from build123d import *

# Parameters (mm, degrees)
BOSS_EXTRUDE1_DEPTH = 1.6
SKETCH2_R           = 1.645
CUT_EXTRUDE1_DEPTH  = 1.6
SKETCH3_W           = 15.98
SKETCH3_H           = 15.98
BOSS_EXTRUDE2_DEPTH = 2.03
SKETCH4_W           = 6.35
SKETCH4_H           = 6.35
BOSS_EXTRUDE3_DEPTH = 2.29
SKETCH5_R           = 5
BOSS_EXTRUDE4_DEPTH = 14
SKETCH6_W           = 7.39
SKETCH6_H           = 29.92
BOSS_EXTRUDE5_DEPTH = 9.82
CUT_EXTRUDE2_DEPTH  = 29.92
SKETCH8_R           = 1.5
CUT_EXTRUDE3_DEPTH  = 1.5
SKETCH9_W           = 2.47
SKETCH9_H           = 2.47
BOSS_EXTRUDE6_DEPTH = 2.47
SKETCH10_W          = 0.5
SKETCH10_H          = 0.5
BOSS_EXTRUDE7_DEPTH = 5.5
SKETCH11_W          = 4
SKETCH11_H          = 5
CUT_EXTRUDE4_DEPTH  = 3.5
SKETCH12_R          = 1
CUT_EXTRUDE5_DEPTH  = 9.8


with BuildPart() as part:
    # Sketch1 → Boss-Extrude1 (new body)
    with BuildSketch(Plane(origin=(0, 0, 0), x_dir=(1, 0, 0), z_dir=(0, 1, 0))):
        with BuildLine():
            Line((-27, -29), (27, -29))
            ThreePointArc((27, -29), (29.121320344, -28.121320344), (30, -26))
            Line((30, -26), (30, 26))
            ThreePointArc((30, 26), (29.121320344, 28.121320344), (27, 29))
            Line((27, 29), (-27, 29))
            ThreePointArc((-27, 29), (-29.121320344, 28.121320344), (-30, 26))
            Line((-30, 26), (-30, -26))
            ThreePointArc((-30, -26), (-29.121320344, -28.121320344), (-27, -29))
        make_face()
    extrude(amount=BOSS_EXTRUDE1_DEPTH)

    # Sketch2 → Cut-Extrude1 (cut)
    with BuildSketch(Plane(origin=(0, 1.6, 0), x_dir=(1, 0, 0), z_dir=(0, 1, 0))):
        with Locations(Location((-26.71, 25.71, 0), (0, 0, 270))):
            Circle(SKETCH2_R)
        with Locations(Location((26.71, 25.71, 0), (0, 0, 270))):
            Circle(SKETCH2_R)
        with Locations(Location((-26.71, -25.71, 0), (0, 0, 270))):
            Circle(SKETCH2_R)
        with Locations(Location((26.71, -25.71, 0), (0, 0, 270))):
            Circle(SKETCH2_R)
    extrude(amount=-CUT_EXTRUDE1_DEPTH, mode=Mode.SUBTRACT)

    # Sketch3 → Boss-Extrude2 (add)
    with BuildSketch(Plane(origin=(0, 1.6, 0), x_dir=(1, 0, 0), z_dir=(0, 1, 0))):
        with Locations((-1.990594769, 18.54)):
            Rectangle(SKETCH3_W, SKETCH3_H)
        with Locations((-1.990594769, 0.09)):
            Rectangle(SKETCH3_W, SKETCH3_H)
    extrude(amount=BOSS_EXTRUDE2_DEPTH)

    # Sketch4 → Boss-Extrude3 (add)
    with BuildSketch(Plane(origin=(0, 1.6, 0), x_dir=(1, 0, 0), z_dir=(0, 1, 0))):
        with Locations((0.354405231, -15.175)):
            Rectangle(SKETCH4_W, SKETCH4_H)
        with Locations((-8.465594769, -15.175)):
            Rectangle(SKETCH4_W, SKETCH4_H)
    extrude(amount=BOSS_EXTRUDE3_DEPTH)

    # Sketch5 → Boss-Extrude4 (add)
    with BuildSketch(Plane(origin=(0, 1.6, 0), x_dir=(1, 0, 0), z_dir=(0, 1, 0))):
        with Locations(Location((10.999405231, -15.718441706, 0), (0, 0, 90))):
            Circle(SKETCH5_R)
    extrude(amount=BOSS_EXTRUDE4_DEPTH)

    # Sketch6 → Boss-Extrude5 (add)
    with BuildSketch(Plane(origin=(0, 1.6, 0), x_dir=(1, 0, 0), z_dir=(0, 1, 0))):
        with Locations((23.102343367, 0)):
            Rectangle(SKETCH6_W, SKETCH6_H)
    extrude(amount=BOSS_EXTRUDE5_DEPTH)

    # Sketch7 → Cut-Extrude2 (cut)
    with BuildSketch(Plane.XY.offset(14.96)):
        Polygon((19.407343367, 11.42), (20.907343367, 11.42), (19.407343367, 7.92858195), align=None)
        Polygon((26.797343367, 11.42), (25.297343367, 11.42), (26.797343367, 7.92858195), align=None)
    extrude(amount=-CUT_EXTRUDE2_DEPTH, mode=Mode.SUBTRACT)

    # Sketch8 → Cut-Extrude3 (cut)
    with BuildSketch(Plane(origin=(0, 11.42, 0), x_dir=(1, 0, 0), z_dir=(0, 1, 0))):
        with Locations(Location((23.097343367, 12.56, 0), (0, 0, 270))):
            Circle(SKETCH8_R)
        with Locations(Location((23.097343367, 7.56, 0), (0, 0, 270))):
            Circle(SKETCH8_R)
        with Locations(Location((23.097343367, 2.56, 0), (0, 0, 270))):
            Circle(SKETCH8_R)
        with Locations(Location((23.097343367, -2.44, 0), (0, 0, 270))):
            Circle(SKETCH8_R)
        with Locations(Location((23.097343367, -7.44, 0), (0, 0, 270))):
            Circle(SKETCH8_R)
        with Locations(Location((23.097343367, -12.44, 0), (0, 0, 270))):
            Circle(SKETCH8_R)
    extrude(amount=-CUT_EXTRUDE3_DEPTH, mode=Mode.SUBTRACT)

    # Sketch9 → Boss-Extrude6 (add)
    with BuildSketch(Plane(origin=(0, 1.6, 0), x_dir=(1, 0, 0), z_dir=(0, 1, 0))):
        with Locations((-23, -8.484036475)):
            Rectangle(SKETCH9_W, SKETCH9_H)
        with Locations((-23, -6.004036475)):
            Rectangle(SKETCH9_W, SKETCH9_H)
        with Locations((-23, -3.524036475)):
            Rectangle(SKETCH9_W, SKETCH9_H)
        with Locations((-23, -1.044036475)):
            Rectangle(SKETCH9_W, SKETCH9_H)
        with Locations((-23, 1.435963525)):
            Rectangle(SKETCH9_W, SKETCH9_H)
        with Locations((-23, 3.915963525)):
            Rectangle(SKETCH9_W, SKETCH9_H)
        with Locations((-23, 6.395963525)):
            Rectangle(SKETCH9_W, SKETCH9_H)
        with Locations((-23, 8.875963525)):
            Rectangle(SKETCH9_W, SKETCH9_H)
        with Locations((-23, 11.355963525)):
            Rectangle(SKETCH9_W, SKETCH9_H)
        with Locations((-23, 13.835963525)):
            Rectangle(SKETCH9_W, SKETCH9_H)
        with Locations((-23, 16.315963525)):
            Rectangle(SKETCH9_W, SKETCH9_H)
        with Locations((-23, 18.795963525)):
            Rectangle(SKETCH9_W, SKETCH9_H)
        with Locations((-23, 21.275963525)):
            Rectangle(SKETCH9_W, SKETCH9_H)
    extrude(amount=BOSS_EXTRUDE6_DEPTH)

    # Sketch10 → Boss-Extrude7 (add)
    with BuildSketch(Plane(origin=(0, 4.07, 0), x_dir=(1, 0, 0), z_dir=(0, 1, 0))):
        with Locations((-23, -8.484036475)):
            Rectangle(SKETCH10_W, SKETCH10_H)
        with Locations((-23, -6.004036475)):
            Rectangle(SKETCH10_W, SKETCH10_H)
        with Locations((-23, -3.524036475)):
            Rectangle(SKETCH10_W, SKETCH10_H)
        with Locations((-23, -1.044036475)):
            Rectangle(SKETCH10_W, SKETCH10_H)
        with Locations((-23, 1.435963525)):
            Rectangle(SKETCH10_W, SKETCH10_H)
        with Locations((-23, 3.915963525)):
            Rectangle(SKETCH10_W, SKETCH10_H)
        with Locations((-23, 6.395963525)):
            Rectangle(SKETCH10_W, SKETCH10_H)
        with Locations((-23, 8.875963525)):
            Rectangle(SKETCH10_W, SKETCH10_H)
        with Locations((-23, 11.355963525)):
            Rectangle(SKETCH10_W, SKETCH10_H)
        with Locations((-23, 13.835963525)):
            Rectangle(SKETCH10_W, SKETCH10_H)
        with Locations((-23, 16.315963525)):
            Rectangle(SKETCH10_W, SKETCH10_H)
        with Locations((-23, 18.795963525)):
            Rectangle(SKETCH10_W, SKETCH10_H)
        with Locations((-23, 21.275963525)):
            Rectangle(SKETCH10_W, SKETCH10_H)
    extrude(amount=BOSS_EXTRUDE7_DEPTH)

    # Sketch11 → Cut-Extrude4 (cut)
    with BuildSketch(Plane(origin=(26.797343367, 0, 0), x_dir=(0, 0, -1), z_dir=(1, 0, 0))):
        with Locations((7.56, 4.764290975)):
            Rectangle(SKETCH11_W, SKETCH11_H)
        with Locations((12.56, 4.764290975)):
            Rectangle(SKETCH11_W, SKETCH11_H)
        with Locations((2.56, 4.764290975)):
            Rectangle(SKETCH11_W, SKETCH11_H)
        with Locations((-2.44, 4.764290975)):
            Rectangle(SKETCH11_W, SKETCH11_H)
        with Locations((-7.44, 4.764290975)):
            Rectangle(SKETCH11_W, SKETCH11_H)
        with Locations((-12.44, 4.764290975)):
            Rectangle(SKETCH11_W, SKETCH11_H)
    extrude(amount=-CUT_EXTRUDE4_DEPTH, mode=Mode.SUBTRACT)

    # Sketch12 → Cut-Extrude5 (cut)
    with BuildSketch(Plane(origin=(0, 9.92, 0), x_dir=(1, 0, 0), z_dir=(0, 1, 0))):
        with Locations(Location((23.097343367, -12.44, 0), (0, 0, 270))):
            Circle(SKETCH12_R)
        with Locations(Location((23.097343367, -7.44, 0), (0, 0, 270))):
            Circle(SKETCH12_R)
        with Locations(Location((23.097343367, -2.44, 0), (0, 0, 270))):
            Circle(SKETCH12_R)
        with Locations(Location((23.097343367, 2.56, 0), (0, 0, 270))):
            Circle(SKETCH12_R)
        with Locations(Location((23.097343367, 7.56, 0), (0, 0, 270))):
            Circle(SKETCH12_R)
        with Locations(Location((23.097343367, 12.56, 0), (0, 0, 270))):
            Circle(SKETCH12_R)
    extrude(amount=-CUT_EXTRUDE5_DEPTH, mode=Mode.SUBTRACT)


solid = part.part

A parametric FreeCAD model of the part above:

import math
import FreeCAD as App
import Part
import Sketcher
from FreeCAD import Vector


def add_polygon(sketch, points):
    """Adds a closed chain of lines whose ends are joined by coincident constraints."""
    first, n = sketch.GeometryCount, len(points)
    for a, b in zip(points, points[1:] + points[:1]):
        sketch.addGeometry(Part.LineSegment(App.Vector(*a, 0), App.Vector(*b, 0)), False)
    for i in range(n):
        sketch.addConstraint(Sketcher.Constraint("Coincident", first + i, 2, first + (i + 1) % n, 1))

doc = App.newDocument("Part")
body = doc.addObject("PartDesign::Body", "Body")

sketch1 = body.newObject("Sketcher::SketchObject", "Sketch")
sketch1.AttachmentSupport = (doc.getObject("XZ_Plane"), [""])
sketch1.MapMode = "FlatFace"
sketch1.addGeometry([
    Part.LineSegment(Vector(-27, 29, 0), Vector(27, 29, 0)),
    Part.ArcOfCircle(Part.Circle(Vector(27, 26, 0), Vector(0, 0, 1), 3), math.radians(0), math.radians(90)),
    Part.LineSegment(Vector(30, 26, 0), Vector(30, -26, 0)),
    Part.ArcOfCircle(Part.Circle(Vector(27, -26, 0), Vector(0, 0, 1), 3), math.radians(-90), math.radians(0)),
    Part.LineSegment(Vector(27, -29, 0), Vector(-27, -29, 0)),
    Part.ArcOfCircle(Part.Circle(Vector(-27, -26, 0), Vector(0, 0, 1), 3), math.radians(180), math.radians(270)),
    Part.LineSegment(Vector(-30, -26, 0), Vector(-30, 26, 0)),
    Part.ArcOfCircle(Part.Circle(Vector(-27, 26, 0), Vector(0, 0, 1), 3), math.radians(90), math.radians(180)),
], False)
sketch1.addConstraint([
    Sketcher.Constraint("Tangent", 0, 2, 1, 2),
    Sketcher.Constraint("Tangent", 1, 1, 2, 1),
    Sketcher.Constraint("Tangent", 2, 2, 3, 2),
    Sketcher.Constraint("Tangent", 3, 1, 4, 1),
    Sketcher.Constraint("Tangent", 4, 2, 5, 2),
    Sketcher.Constraint("Tangent", 5, 1, 6, 1),
    Sketcher.Constraint("Tangent", 6, 2, 7, 2),
    Sketcher.Constraint("Tangent", 7, 1, 0, 1),
    Sketcher.Constraint("Horizontal", 0),
    Sketcher.Constraint("Vertical", 2),
    Sketcher.Constraint("Horizontal", 4),
    Sketcher.Constraint("Vertical", 6),
    Sketcher.Constraint("Equal", 1, 3),
    Sketcher.Constraint("Equal", 3, 5),
    Sketcher.Constraint("Equal", 5, 7),
    Sketcher.Constraint("Symmetric", 1, 3, 5, 3, -1, 1),
    Sketcher.Constraint("Radius", 1, 3.0),
    Sketcher.Constraint("DistanceX", 0, 1, 0, 2, 54.0),
    Sketcher.Constraint("DistanceY", 2, 2, 2, 1, 52.0),
])
pad1 = body.newObject("PartDesign::Pad", "Pad")
pad1.Profile = sketch1
pad1.Length = 1.6
pad1.Reversed = True

sketch2 = body.newObject("Sketcher::SketchObject", "Sketch001")
sketch2.AttachmentSupport = (doc.getObject("XZ_Plane"), [""])
sketch2.MapMode = "FlatFace"
sketch2.AttachmentOffset = App.Placement(Vector(0, 0, -1.6), App.Rotation())
sketch2.addGeometry([
    Part.Circle(Vector(-26.71, -25.71, 0), Vector(0, 0, 1), 1.645),
    Part.Circle(Vector(26.71, -25.71, 0), Vector(0, 0, 1), 1.645),
    Part.Circle(Vector(-26.71, 25.71, 0), Vector(0, 0, 1), 1.645),
    Part.Circle(Vector(26.71, 25.71, 0), Vector(0, 0, 1), 1.645),
], False)
sketch2.addConstraint([
    Sketcher.Constraint("Equal", 0, 1),
    Sketcher.Constraint("Equal", 1, 2),
    Sketcher.Constraint("Equal", 2, 3),
    Sketcher.Constraint("Symmetric", 1, 3, 2, 3, -1, 1),
    Sketcher.Constraint("Symmetric", 0, 3, 3, 3, -1, 1),
    Sketcher.Constraint("Symmetric", 0, 3, 1, 3, -2),
    Sketcher.Constraint("Diameter", 0, 3.29),
    Sketcher.Constraint("DistanceX", 0, 3, -1, 1, 26.71),
    Sketcher.Constraint("DistanceY", 0, 3, -1, 1, 25.71),
])
pocket1 = body.newObject("PartDesign::Pocket", "Pocket")
pocket1.Profile = sketch2
pocket1.Length = 1.6
pocket1.Reversed = True

sketch3 = body.newObject("Sketcher::SketchObject", "Sketch002")
sketch3.AttachmentSupport = (doc.getObject("XZ_Plane"), [""])
sketch3.MapMode = "FlatFace"
sketch3.AttachmentOffset = App.Placement(Vector(0, 0, -1.6), App.Rotation())
add_polygon(sketch3, [(-9.980595, -26.53), (-9.980595, -10.55), (5.999405, -10.55), (5.999405, -26.53)])
add_polygon(sketch3, [(-9.980595, -8.08), (-9.980595, 7.9), (5.999405, 7.9), (5.999405, -8.08)])
sketch3.addConstraint([
    Sketcher.Constraint("Vertical", 0),
    Sketcher.Constraint("Horizontal", 1),
    Sketcher.Constraint("Vertical", 2),
    Sketcher.Constraint("Horizontal", 3),
    Sketcher.Constraint("Vertical", 4),
    Sketcher.Constraint("Horizontal", 5),
    Sketcher.Constraint("Vertical", 6),
    Sketcher.Constraint("Horizontal", 7),
    Sketcher.Constraint("Vertical", 3, 2, 4, 2),
    Sketcher.Constraint("Vertical", 2, 2, 5, 2),
    Sketcher.Constraint("Equal", 7, 0),
    Sketcher.Constraint("Equal", 2, 4),
    Sketcher.Constraint("DistanceX", 1, 1, 1, 2, 15.98),
    Sketcher.Constraint("DistanceY", -1, 1, 4, 2, 7.9),
    Sketcher.Constraint("DistanceY", 0, 2, -1, 1, 10.55),
    Sketcher.Constraint("DistanceX", 0, 2, -1, 1, 9.980595),
])
pad2 = body.newObject("PartDesign::Pad", "Pad001")
pad2.Profile = sketch3
pad2.Length = 2.03
pad2.Reversed = True

sketch4 = body.newObject("Sketcher::SketchObject", "Sketch003")
sketch4.AttachmentSupport = (doc.getObject("XZ_Plane"), [""])
sketch4.MapMode = "FlatFace"
sketch4.AttachmentOffset = App.Placement(Vector(0, 0, -1.6), App.Rotation())
add_polygon(sketch4, [(-2.820595, 12), (-2.820595, 18.35), (3.529405, 18.35), (3.529405, 12)])
add_polygon(sketch4, [(-11.640595, 12), (-11.640595, 18.35), (-5.290595, 18.35), (-5.290595, 12)])
sketch4.addConstraint([
    Sketcher.Constraint("Vertical", 0),
    Sketcher.Constraint("Horizontal", 1),
    Sketcher.Constraint("Vertical", 2),
    Sketcher.Constraint("Horizontal", 3),
    Sketcher.Constraint("Vertical", 4),
    Sketcher.Constraint("Horizontal", 5),
    Sketcher.Constraint("Vertical", 6),
    Sketcher.Constraint("Horizontal", 7),
    Sketcher.Constraint("Horizontal", 1, 2, 4, 2),
    Sketcher.Constraint("Horizontal", 3, 2, 6, 2),
    Sketcher.Constraint("Equal", 3, 5),
    Sketcher.Constraint("Equal", 7, 0),
    Sketcher.Constraint("DistanceY", -1, 1, 2, 2, 12.0),
    Sketcher.Constraint("DistanceX", 1, 1, 1, 2, 6.35),
    Sketcher.Constraint("DistanceX", 4, 2, 0, 2, 8.82),
    Sketcher.Constraint("DistanceX", 0, 2, -1, 1, 2.820595),
])
pad3 = body.newObject("PartDesign::Pad", "Pad002")
pad3.Profile = sketch4
pad3.Length = 2.29
pad3.Reversed = True

sketch5 = body.newObject("Sketcher::SketchObject", "Sketch004")
sketch5.AttachmentSupport = (doc.getObject("XZ_Plane"), [""])
sketch5.MapMode = "FlatFace"
sketch5.AttachmentOffset = App.Placement(Vector(0, 0, -1.6), App.Rotation())
sketch5.addGeometry(Part.Circle(Vector(10.999405, 15.718442, 0), Vector(0, 0, 1), 5), False)
sketch5.addConstraint([
    Sketcher.Constraint("Diameter", 0, 10.0),
    Sketcher.Constraint("DistanceY", -1, 1, 0, 3, 15.718442),
    Sketcher.Constraint("DistanceX", -1, 1, 0, 3, 10.999405),
])
pad4 = body.newObject("PartDesign::Pad", "Pad003")
pad4.Profile = sketch5
pad4.Length = 14
pad4.Reversed = True

sketch6 = body.newObject("Sketcher::SketchObject", "Sketch005")
sketch6.AttachmentSupport = (doc.getObject("XZ_Plane"), [""])
sketch6.MapMode = "FlatFace"
sketch6.AttachmentOffset = App.Placement(Vector(0, 0, -1.6), App.Rotation())
add_polygon(sketch6, [(19.407343, -14.96), (19.407343, 14.96), (26.797343, 14.96), (26.797343, -14.96)])
sketch6.addConstraint([
    Sketcher.Constraint("Vertical", 0),
    Sketcher.Constraint("Horizontal", 1),
    Sketcher.Constraint("Vertical", 2),
    Sketcher.Constraint("Horizontal", 3),
    Sketcher.Constraint("DistanceX", 1, 1, 1, 2, 7.39),
    Sketcher.Constraint("DistanceY", 0, 1, 0, 2, 29.92),
    Sketcher.Constraint("DistanceY", -1, 1, 0, 2, 14.96),
    Sketcher.Constraint("DistanceX", -1, 1, 0, 2, 19.407343),
])
pad5 = body.newObject("PartDesign::Pad", "Pad004")
pad5.Profile = sketch6
pad5.Length = 9.82
pad5.Reversed = True

sketch7 = body.newObject("Sketcher::SketchObject", "Sketch006")
sketch7.AttachmentSupport = (doc.getObject("XY_Plane"), [""])
sketch7.MapMode = "FlatFace"
sketch7.AttachmentOffset = App.Placement(Vector(0, 0, 14.96), App.Rotation())
add_polygon(sketch7, [(20.907343, 11.42), (19.407343, 11.42), (19.407343, 7.928582)])
add_polygon(sketch7, [(26.797343, 11.42), (25.297343, 11.42), (26.797343, 7.928582)])
sketch7.addConstraint([
    Sketcher.Constraint("Horizontal", 0),
    Sketcher.Constraint("Vertical", 1),
    Sketcher.Constraint("Horizontal", 3),
    Sketcher.Constraint("Vertical", 5),
    Sketcher.Constraint("Horizontal", 2, 2, 3, 2),
    Sketcher.Constraint("Horizontal", 1, 2, 4, 2),
    Sketcher.Constraint("Equal", 0, 3),
    Sketcher.Constraint("DistanceX", 0, 2, 0, 1, 1.5),
    Sketcher.Constraint("Distance", 2, 3.8),
    Sketcher.Constraint("DistanceY", -1, 1, 0, 2, 11.42),
    Sketcher.Constraint("DistanceX", 2, 2, 3, 2, 4.39),
    Sketcher.Constraint("DistanceX", -1, 1, 0, 2, 19.407343),
])
pocket2 = body.newObject("PartDesign::Pocket", "Pocket001")
pocket2.Profile = sketch7
pocket2.Length = 29.92

sketch8 = body.newObject("Sketcher::SketchObject", "Sketch007")
sketch8.AttachmentSupport = (doc.getObject("XZ_Plane"), [""])
sketch8.MapMode = "FlatFace"
sketch8.AttachmentOffset = App.Placement(Vector(0, 0, -11.42), App.Rotation())
sketch8.addGeometry([
    Part.Circle(Vector(23.097343, -12.56, 0), Vector(0, 0, 1), 1.5),
    Part.Circle(Vector(23.097343, -7.56, 0), Vector(0, 0, 1), 1.5),
    Part.Circle(Vector(23.097343, -2.56, 0), Vector(0, 0, 1), 1.5),
    Part.Circle(Vector(23.097343, 2.44, 0), Vector(0, 0, 1), 1.5),
    Part.Circle(Vector(23.097343, 7.44, 0), Vector(0, 0, 1), 1.5),
    Part.Circle(Vector(23.097343, 12.44, 0), Vector(0, 0, 1), 1.5),
], False)
sketch8.addConstraint([
    Sketcher.Constraint("Equal", 0, 1),
    Sketcher.Constraint("Equal", 1, 2),
    Sketcher.Constraint("Equal", 2, 3),
    Sketcher.Constraint("Equal", 3, 4),
    Sketcher.Constraint("Equal", 4, 5),
    Sketcher.Constraint("Vertical", 0, 3, 1, 3),
    Sketcher.Constraint("Vertical", 1, 3, 2, 3),
    Sketcher.Constraint("Vertical", 2, 3, 3, 3),
    Sketcher.Constraint("Vertical", 3, 3, 4, 3),
    Sketcher.Constraint("Vertical", 4, 3, 5, 3),
    Sketcher.Constraint("Diameter", 0, 3.0),
    Sketcher.Constraint("DistanceY", 0, 3, 1, 3, 5.0),
    Sketcher.Constraint("DistanceY", 1, 3, 2, 3, 5.0),
    Sketcher.Constraint("DistanceY", 2, 3, 3, 3, 5.0),
    Sketcher.Constraint("DistanceY", 3, 3, 4, 3, 5.0),
    Sketcher.Constraint("DistanceY", 4, 3, 5, 3, 5.0),
    Sketcher.Constraint("DistanceY", 0, 3, -1, 1, 12.56),
    Sketcher.Constraint("DistanceX", -1, 1, 0, 3, 23.097343),
])
pocket3 = body.newObject("PartDesign::Pocket", "Pocket002")
pocket3.Profile = sketch8
pocket3.Length = 1.5
pocket3.Reversed = True

sketch9 = body.newObject("Sketcher::SketchObject", "Sketch008")
sketch9.AttachmentSupport = (doc.getObject("XZ_Plane"), [""])
sketch9.MapMode = "FlatFace"
sketch9.AttachmentOffset = App.Placement(Vector(0, 0, -1.6), App.Rotation())
add_polygon(sketch9, [(-24.235, 7.249036), (-24.235, 9.719036), (-21.765, 9.719036), (-21.765, 7.249036)])
add_polygon(sketch9, [(-24.235, 4.769036), (-24.235, 7.239036), (-21.765, 7.239036), (-21.765, 4.769036)])
add_polygon(sketch9, [(-24.235, 2.289036), (-24.235, 4.759036), (-21.765, 4.759036), (-21.765, 2.289036)])
add_polygon(sketch9, [(-24.235, -0.190964), (-24.235, 2.279036), (-21.765, 2.279036), (-21.765, -0.190964)])
add_polygon(sketch9, [(-24.235, -2.670964), (-24.235, -0.200964), (-21.765, -0.200964), (-21.765, -2.670964)])
add_polygon(sketch9, [(-24.235, -5.150964), (-24.235, -2.680964), (-21.765, -2.680964), (-21.765, -5.150964)])
add_polygon(sketch9, [(-24.235, -7.630964), (-24.235, -5.160964), (-21.765, -5.160964), (-21.765, -7.630964)])
add_polygon(sketch9, [(-24.235, -10.110964), (-24.235, -7.640964), (-21.765, -7.640964), (-21.765, -10.110964)])
add_polygon(sketch9, [(-24.235, -12.590964), (-24.235, -10.120964), (-21.765, -10.120964), (-21.765, -12.590964)])
add_polygon(sketch9, [(-24.235, -15.070964), (-24.235, -12.600964), (-21.765, -12.600964), (-21.765, -15.070964)])
add_polygon(sketch9, [(-24.235, -17.550964), (-24.235, -15.080964), (-21.765, -15.080964), (-21.765, -17.550964)])
add_polygon(sketch9, [(-24.235, -20.030964), (-24.235, -17.560964), (-21.765, -17.560964), (-21.765, -20.030964)])
add_polygon(sketch9, [(-24.235, -22.510964), (-24.235, -20.040964), (-21.765, -20.040964), (-21.765, -22.510964)])
sketch9.addConstraint([
    Sketcher.Constraint("Vertical", 0),
    Sketcher.Constraint("Horizontal", 1),
    Sketcher.Constraint("Vertical", 2),
    Sketcher.Constraint("Horizontal", 3),
    Sketcher.Constraint("Vertical", 4),
    Sketcher.Constraint("Horizontal", 5),
    Sketcher.Constraint("Vertical", 6),
    Sketcher.Constraint("Horizontal", 7),
    Sketcher.Constraint("Vertical", 8),
    Sketcher.Constraint("Horizontal", 9),
    Sketcher.Constraint("Vertical", 10),
    Sketcher.Constraint("Horizontal", 11),
    Sketcher.Constraint("Vertical", 12),
    Sketcher.Constraint("Horizontal", 13),
    Sketcher.Constraint("Vertical", 14),
    Sketcher.Constraint("Horizontal", 15),
    Sketcher.Constraint("Vertical", 16),
    Sketcher.Constraint("Horizontal", 17),
    Sketcher.Constraint("Vertical", 18),
    Sketcher.Constraint("Horizontal", 19),
    Sketcher.Constraint("Vertical", 20),
    Sketcher.Constraint("Horizontal", 21),
    Sketcher.Constraint("Vertical", 22),
    Sketcher.Constraint("Horizontal", 23),
    Sketcher.Constraint("Vertical", 24),
    Sketcher.Constraint("Horizontal", 25),
    Sketcher.Constraint("Vertical", 26),
    Sketcher.Constraint("Horizontal", 27),
    Sketcher.Constraint("Vertical", 28),
    Sketcher.Constraint("Horizontal", 29),
    Sketcher.Constraint("Vertical", 30),
    Sketcher.Constraint("Horizontal", 31),
    Sketcher.Constraint("Vertical", 32),
    Sketcher.Constraint("Horizontal", 33),
    Sketcher.Constraint("Vertical", 34),
    Sketcher.Constraint("Horizontal", 35),
    Sketcher.Constraint("Vertical", 36),
    Sketcher.Constraint("Horizontal", 37),
    Sketcher.Constraint("Vertical", 38),
    Sketcher.Constraint("Horizontal", 39),
    Sketcher.Constraint("Vertical", 40),
    Sketcher.Constraint("Horizontal", 41),
    Sketcher.Constraint("Vertical", 42),
    Sketcher.Constraint("Horizontal", 43),
    Sketcher.Constraint("Vertical", 44),
    Sketcher.Constraint("Horizontal", 45),
    Sketcher.Constraint("Vertical", 46),
    Sketcher.Constraint("Horizontal", 47),
    Sketcher.Constraint("Vertical", 48),
    Sketcher.Constraint("Horizontal", 49),
    Sketcher.Constraint("Vertical", 50),
    Sketcher.Constraint("Horizontal", 51),
    Sketcher.Constraint("Vertical", 3, 2, 4, 2),
    Sketcher.Constraint("Vertical", 2, 2, 5, 2),
    Sketcher.Constraint("Vertical", 7, 2, 8, 2),
    Sketcher.Constraint("Vertical", 6, 2, 9, 2),
    Sketcher.Constraint("Vertical", 11, 2, 12, 2),
    Sketcher.Constraint("Vertical", 10, 2, 13, 2),
    Sketcher.Constraint("Vertical", 15, 2, 16, 2),
    Sketcher.Constraint("Vertical", 14, 2, 17, 2),
    Sketcher.Constraint("Vertical", 19, 2, 20, 2),
    Sketcher.Constraint("Vertical", 18, 2, 21, 2),
    Sketcher.Constraint("Vertical", 23, 2, 24, 2),
    Sketcher.Constraint("Vertical", 22, 2, 25, 2),
    Sketcher.Constraint("Vertical", 27, 2, 28, 2),
    Sketcher.Constraint("Vertical", 26, 2, 29, 2),
    Sketcher.Constraint("Vertical", 31, 2, 32, 2),
    Sketcher.Constraint("Vertical", 30, 2, 33, 2),
    Sketcher.Constraint("Vertical", 35, 2, 36, 2),
    Sketcher.Constraint("Vertical", 34, 2, 37, 2),
    Sketcher.Constraint("Vertical", 39, 2, 40, 2),
    Sketcher.Constraint("Vertical", 38, 2, 41, 2),
    Sketcher.Constraint("Vertical", 43, 2, 44, 2),
    Sketcher.Constraint("Vertical", 42, 2, 45, 2),
    Sketcher.Constraint("Vertical", 47, 2, 48, 2),
    Sketcher.Constraint("Vertical", 46, 2, 49, 2),
    Sketcher.Constraint("Equal", 51, 0),
    Sketcher.Constraint("Equal", 2, 4),
    Sketcher.Constraint("Equal", 6, 8),
    Sketcher.Constraint("Equal", 10, 12),
    Sketcher.Constraint("Equal", 14, 16),
    Sketcher.Constraint("Equal", 18, 20),
    Sketcher.Constraint("Equal", 22, 24),
    Sketcher.Constraint("Equal", 26, 28),
    Sketcher.Constraint("Equal", 30, 32),
    Sketcher.Constraint("Equal", 34, 36),
    Sketcher.Constraint("Equal", 38, 40),
    Sketcher.Constraint("Equal", 42, 44),
    Sketcher.Constraint("Equal", 46, 48),
    Sketcher.Constraint("DistanceX", 1, 1, 1, 2, 2.47),
    Sketcher.Constraint("DistanceY", 4, 2, 3, 2, 0.01),
    Sketcher.Constraint("DistanceY", 8, 2, 7, 2, 0.01),
    Sketcher.Constraint("DistanceY", 12, 2, 11, 2, 0.01),
    Sketcher.Constraint("DistanceY", 16, 2, 15, 2, 0.01),
    Sketcher.Constraint("DistanceY", 20, 2, 19, 2, 0.01),
    Sketcher.Constraint("DistanceY", 24, 2, 23, 2, 0.01),
    Sketcher.Constraint("DistanceY", 28, 2, 27, 2, 0.01),
    Sketcher.Constraint("DistanceY", 32, 2, 31, 2, 0.01),
    Sketcher.Constraint("DistanceY", 36, 2, 35, 2, 0.01),
    Sketcher.Constraint("DistanceY", 40, 2, 39, 2, 0.01),
    Sketcher.Constraint("DistanceY", 44, 2, 43, 2, 0.01),
    Sketcher.Constraint("DistanceY", 48, 2, 47, 2, 0.01),
    Sketcher.Constraint("DistanceX", 0, 2, -1, 1, 24.235),
    Sketcher.Constraint("DistanceY", -1, 1, 0, 2, 9.719036),
])
pad6 = body.newObject("PartDesign::Pad", "Pad005")
pad6.Profile = sketch9
pad6.Length = 2.47
pad6.Reversed = True

sketch10 = body.newObject("Sketcher::SketchObject", "Sketch009")
sketch10.AttachmentSupport = (doc.getObject("XZ_Plane"), [""])
sketch10.MapMode = "FlatFace"
sketch10.AttachmentOffset = App.Placement(Vector(0, 0, -4.07), App.Rotation())
add_polygon(sketch10, [(-23.25, 8.234036), (-23.25, 8.734036), (-22.75, 8.734036), (-22.75, 8.234036)])
add_polygon(sketch10, [(-23.25, 5.754036), (-23.25, 6.254036), (-22.75, 6.254036), (-22.75, 5.754036)])
add_polygon(sketch10, [(-23.25, 3.274036), (-23.25, 3.774036), (-22.75, 3.774036), (-22.75, 3.274036)])
add_polygon(sketch10, [(-23.25, 0.794036), (-23.25, 1.294036), (-22.75, 1.294036), (-22.75, 0.794036)])
add_polygon(sketch10, [(-23.25, -1.685964), (-23.25, -1.185964), (-22.75, -1.185964), (-22.75, -1.685964)])
add_polygon(sketch10, [(-23.25, -4.165964), (-23.25, -3.665964), (-22.75, -3.665964), (-22.75, -4.165964)])
add_polygon(sketch10, [(-23.25, -6.645964), (-23.25, -6.145964), (-22.75, -6.145964), (-22.75, -6.645964)])
add_polygon(sketch10, [(-23.25, -9.125964), (-23.25, -8.625964), (-22.75, -8.625964), (-22.75, -9.125964)])
add_polygon(sketch10, [(-23.25, -11.605964), (-23.25, -11.105964), (-22.75, -11.105964), (-22.75, -11.605964)])
add_polygon(sketch10, [(-23.25, -14.085964), (-23.25, -13.585964), (-22.75, -13.585964), (-22.75, -14.085964)])
add_polygon(sketch10, [(-23.25, -16.565964), (-23.25, -16.065964), (-22.75, -16.065964), (-22.75, -16.565964)])
add_polygon(sketch10, [(-23.25, -19.045964), (-23.25, -18.545964), (-22.75, -18.545964), (-22.75, -19.045964)])
add_polygon(sketch10, [(-23.25, -21.525964), (-23.25, -21.025964), (-22.75, -21.025964), (-22.75, -21.525964)])
sketch10.addConstraint([
    Sketcher.Constraint("Vertical", 0),
    Sketcher.Constraint("Horizontal", 1),
    Sketcher.Constraint("Vertical", 2),
    Sketcher.Constraint("Horizontal", 3),
    Sketcher.Constraint("Vertical", 4),
    Sketcher.Constraint("Horizontal", 5),
    Sketcher.Constraint("Vertical", 6),
    Sketcher.Constraint("Horizontal", 7),
    Sketcher.Constraint("Vertical", 8),
    Sketcher.Constraint("Horizontal", 9),
    Sketcher.Constraint("Vertical", 10),
    Sketcher.Constraint("Horizontal", 11),
    Sketcher.Constraint("Vertical", 12),
    Sketcher.Constraint("Horizontal", 13),
    Sketcher.Constraint("Vertical", 14),
    Sketcher.Constraint("Horizontal", 15),
    Sketcher.Constraint("Vertical", 16),
    Sketcher.Constraint("Horizontal", 17),
    Sketcher.Constraint("Vertical", 18),
    Sketcher.Constraint("Horizontal", 19),
    Sketcher.Constraint("Vertical", 20),
    Sketcher.Constraint("Horizontal", 21),
    Sketcher.Constraint("Vertical", 22),
    Sketcher.Constraint("Horizontal", 23),
    Sketcher.Constraint("Vertical", 24),
    Sketcher.Constraint("Horizontal", 25),
    Sketcher.Constraint("Vertical", 26),
    Sketcher.Constraint("Horizontal", 27),
    Sketcher.Constraint("Vertical", 28),
    Sketcher.Constraint("Horizontal", 29),
    Sketcher.Constraint("Vertical", 30),
    Sketcher.Constraint("Horizontal", 31),
    Sketcher.Constraint("Vertical", 32),
    Sketcher.Constraint("Horizontal", 33),
    Sketcher.Constraint("Vertical", 34),
    Sketcher.Constraint("Horizontal", 35),
    Sketcher.Constraint("Vertical", 36),
    Sketcher.Constraint("Horizontal", 37),
    Sketcher.Constraint("Vertical", 38),
    Sketcher.Constraint("Horizontal", 39),
    Sketcher.Constraint("Vertical", 40),
    Sketcher.Constraint("Horizontal", 41),
    Sketcher.Constraint("Vertical", 42),
    Sketcher.Constraint("Horizontal", 43),
    Sketcher.Constraint("Vertical", 44),
    Sketcher.Constraint("Horizontal", 45),
    Sketcher.Constraint("Vertical", 46),
    Sketcher.Constraint("Horizontal", 47),
    Sketcher.Constraint("Vertical", 48),
    Sketcher.Constraint("Horizontal", 49),
    Sketcher.Constraint("Vertical", 50),
    Sketcher.Constraint("Horizontal", 51),
    Sketcher.Constraint("Vertical", 3, 2, 4, 2),
    Sketcher.Constraint("Vertical", 2, 2, 5, 2),
    Sketcher.Constraint("Vertical", 7, 2, 8, 2),
    Sketcher.Constraint("Vertical", 6, 2, 9, 2),
    Sketcher.Constraint("Vertical", 11, 2, 12, 2),
    Sketcher.Constraint("Vertical", 10, 2, 13, 2),
    Sketcher.Constraint("Vertical", 15, 2, 16, 2),
    Sketcher.Constraint("Vertical", 14, 2, 17, 2),
    Sketcher.Constraint("Vertical", 19, 2, 20, 2),
    Sketcher.Constraint("Vertical", 18, 2, 21, 2),
    Sketcher.Constraint("Vertical", 23, 2, 24, 2),
    Sketcher.Constraint("Vertical", 22, 2, 25, 2),
    Sketcher.Constraint("Vertical", 27, 2, 28, 2),
    Sketcher.Constraint("Vertical", 26, 2, 29, 2),
    Sketcher.Constraint("Vertical", 31, 2, 32, 2),
    Sketcher.Constraint("Vertical", 30, 2, 33, 2),
    Sketcher.Constraint("Vertical", 35, 2, 36, 2),
    Sketcher.Constraint("Vertical", 34, 2, 37, 2),
    Sketcher.Constraint("Vertical", 39, 2, 40, 2),
    Sketcher.Constraint("Vertical", 38, 2, 41, 2),
    Sketcher.Constraint("Vertical", 43, 2, 44, 2),
    Sketcher.Constraint("Vertical", 42, 2, 45, 2),
    Sketcher.Constraint("Vertical", 47, 2, 48, 2),
    Sketcher.Constraint("Vertical", 46, 2, 49, 2),
    Sketcher.Constraint("Equal", 51, 0),
    Sketcher.Constraint("Equal", 2, 4),
    Sketcher.Constraint("Equal", 6, 8),
    Sketcher.Constraint("Equal", 10, 12),
    Sketcher.Constraint("Equal", 14, 16),
    Sketcher.Constraint("Equal", 18, 20),
    Sketcher.Constraint("Equal", 22, 24),
    Sketcher.Constraint("Equal", 26, 28),
    Sketcher.Constraint("Equal", 30, 32),
    Sketcher.Constraint("Equal", 34, 36),
    Sketcher.Constraint("Equal", 38, 40),
    Sketcher.Constraint("Equal", 42, 44),
    Sketcher.Constraint("Equal", 46, 48),
    Sketcher.Constraint("DistanceX", 1, 1, 1, 2, 0.5),
    Sketcher.Constraint("DistanceX", 0, 2, -1, 1, 23.25),
    Sketcher.Constraint("DistanceY", 4, 2, 3, 2, 1.98),
    Sketcher.Constraint("DistanceY", 8, 2, 7, 2, 1.98),
    Sketcher.Constraint("DistanceY", 12, 2, 11, 2, 1.98),
    Sketcher.Constraint("DistanceY", 16, 2, 15, 2, 1.98),
    Sketcher.Constraint("DistanceY", 20, 2, 19, 2, 1.98),
    Sketcher.Constraint("DistanceY", 24, 2, 23, 2, 1.98),
    Sketcher.Constraint("DistanceY", 28, 2, 27, 2, 1.98),
    Sketcher.Constraint("DistanceY", 32, 2, 31, 2, 1.98),
    Sketcher.Constraint("DistanceY", 36, 2, 35, 2, 1.98),
    Sketcher.Constraint("DistanceY", 40, 2, 39, 2, 1.98),
    Sketcher.Constraint("DistanceY", 44, 2, 43, 2, 1.98),
    Sketcher.Constraint("DistanceY", 48, 2, 47, 2, 1.98),
    Sketcher.Constraint("DistanceY", -1, 1, 0, 2, 8.734036),
])
pad7 = body.newObject("PartDesign::Pad", "Pad006")
pad7.Profile = sketch10
pad7.Length = 5.5
pad7.Reversed = True

sketch11 = body.newObject("Sketcher::SketchObject", "Sketch010")
sketch11.AttachmentSupport = (doc.getObject("YZ_Plane"), [""])
sketch11.MapMode = "FlatFace"
sketch11.AttachmentOffset = App.Placement(Vector(0, 0, 26.797343), App.Rotation())
add_polygon(sketch11, [(7.264291, -5.56), (2.264291, -5.56), (2.264291, -9.56), (7.264291, -9.56)])
add_polygon(sketch11, [(7.264291, -10.56), (2.264291, -10.56), (2.264291, -14.56), (7.264291, -14.56)])
add_polygon(sketch11, [(7.264291, -0.56), (2.264291, -0.56), (2.264291, -4.56), (7.264291, -4.56)])
add_polygon(sketch11, [(7.264291, 4.44), (2.264291, 4.44), (2.264291, 0.44), (7.264291, 0.44)])
add_polygon(sketch11, [(7.264291, 9.44), (2.264291, 9.44), (2.264291, 5.44), (7.264291, 5.44)])
add_polygon(sketch11, [(7.264291, 14.44), (2.264291, 14.44), (2.264291, 10.44), (7.264291, 10.44)])
sketch11.addConstraint([
    Sketcher.Constraint("Horizontal", 0),
    Sketcher.Constraint("Vertical", 1),
    Sketcher.Constraint("Horizontal", 2),
    Sketcher.Constraint("Vertical", 3),
    Sketcher.Constraint("Horizontal", 4),
    Sketcher.Constraint("Vertical", 5),
    Sketcher.Constraint("Horizontal", 6),
    Sketcher.Constraint("Vertical", 7),
    Sketcher.Constraint("Horizontal", 8),
    Sketcher.Constraint("Vertical", 9),
    Sketcher.Constraint("Horizontal", 10),
    Sketcher.Constraint("Vertical", 11),
    Sketcher.Constraint("Horizontal", 12),
    Sketcher.Constraint("Vertical", 13),
    Sketcher.Constraint("Horizontal", 14),
    Sketcher.Constraint("Vertical", 15),
    Sketcher.Constraint("Horizontal", 16),
    Sketcher.Constraint("Vertical", 17),
    Sketcher.Constraint("Horizontal", 18),
    Sketcher.Constraint("Vertical", 19),
    Sketcher.Constraint("Horizontal", 20),
    Sketcher.Constraint("Vertical", 21),
    Sketcher.Constraint("Horizontal", 22),
    Sketcher.Constraint("Vertical", 23),
    Sketcher.Constraint("Vertical", 1, 2, 4, 2),
    Sketcher.Constraint("Vertical", 3, 2, 6, 2),
    Sketcher.Constraint("Vertical", 5, 2, 8, 2),
    Sketcher.Constraint("Vertical", 7, 2, 10, 2),
    Sketcher.Constraint("Vertical", 9, 2, 12, 2),
    Sketcher.Constraint("Vertical", 11, 2, 14, 2),
    Sketcher.Constraint("Vertical", 13, 2, 16, 2),
    Sketcher.Constraint("Vertical", 15, 2, 18, 2),
    Sketcher.Constraint("Vertical", 17, 2, 20, 2),
    Sketcher.Constraint("Vertical", 19, 2, 22, 2),
    Sketcher.Constraint("Equal", 3, 5),
    Sketcher.Constraint("Equal", 7, 9),
    Sketcher.Constraint("Equal", 11, 13),
    Sketcher.Constraint("Equal", 15, 17),
    Sketcher.Constraint("Equal", 19, 21),
    Sketcher.Constraint("DistanceX", 0, 2, 0, 1, 5.0),
    Sketcher.Constraint("DistanceY", 1, 2, 1, 1, 4.0),
    Sketcher.Constraint("DistanceY", 4, 2, 1, 2, 1.0),
    Sketcher.Constraint("DistanceY", 0, 2, 8, 2, 5.0),
    Sketcher.Constraint("DistanceY", 8, 2, 12, 2, 5.0),
    Sketcher.Constraint("DistanceY", 12, 2, 16, 2, 5.0),
    Sketcher.Constraint("DistanceY", 16, 2, 20, 2, 5.0),
    Sketcher.Constraint("DistanceY", 0, 2, -1, 1, 5.56),
    Sketcher.Constraint("DistanceX", -1, 1, 0, 2, 2.264291),
])
pocket4 = body.newObject("PartDesign::Pocket", "Pocket003")
pocket4.Profile = sketch11
pocket4.Length = 3.5

sketch12 = body.newObject("Sketcher::SketchObject", "Sketch011")
sketch12.AttachmentSupport = (doc.getObject("XZ_Plane"), [""])
sketch12.MapMode = "FlatFace"
sketch12.AttachmentOffset = App.Placement(Vector(0, 0, -9.92), App.Rotation())
sketch12.addGeometry([
    Part.Circle(Vector(23.097343, 12.44, 0), Vector(0, 0, 1), 1),
    Part.Circle(Vector(23.097343, 7.44, 0), Vector(0, 0, 1), 1),
    Part.Circle(Vector(23.097343, 2.44, 0), Vector(0, 0, 1), 1),
    Part.Circle(Vector(23.097343, -2.56, 0), Vector(0, 0, 1), 1),
    Part.Circle(Vector(23.097343, -7.56, 0), Vector(0, 0, 1), 1),
    Part.Circle(Vector(23.097343, -12.56, 0), Vector(0, 0, 1), 1),
], False)
sketch12.addConstraint([
    Sketcher.Constraint("Equal", 0, 1),
    Sketcher.Constraint("Equal", 1, 2),
    Sketcher.Constraint("Equal", 2, 3),
    Sketcher.Constraint("Equal", 3, 4),
    Sketcher.Constraint("Equal", 4, 5),
    Sketcher.Constraint("Vertical", 0, 3, 1, 3),
    Sketcher.Constraint("Vertical", 1, 3, 2, 3),
    Sketcher.Constraint("Vertical", 2, 3, 3, 3),
    Sketcher.Constraint("Vertical", 3, 3, 4, 3),
    Sketcher.Constraint("Vertical", 4, 3, 5, 3),
    Sketcher.Constraint("Diameter", 0, 2.0),
    Sketcher.Constraint("DistanceY", 1, 3, 0, 3, 5.0),
    Sketcher.Constraint("DistanceY", 2, 3, 1, 3, 5.0),
    Sketcher.Constraint("DistanceY", 3, 3, 2, 3, 5.0),
    Sketcher.Constraint("DistanceY", 4, 3, 3, 3, 5.0),
    Sketcher.Constraint("DistanceY", 5, 3, 4, 3, 5.0),
    Sketcher.Constraint("DistanceY", -1, 1, 0, 3, 12.44),
    Sketcher.Constraint("DistanceX", -1, 1, 0, 3, 23.097343),
])
pocket5 = body.newObject("PartDesign::Pocket", "Pocket004")
pocket5.Profile = sketch12
pocket5.Length = 9.8
pocket5.Reversed = True

doc.recompute()
